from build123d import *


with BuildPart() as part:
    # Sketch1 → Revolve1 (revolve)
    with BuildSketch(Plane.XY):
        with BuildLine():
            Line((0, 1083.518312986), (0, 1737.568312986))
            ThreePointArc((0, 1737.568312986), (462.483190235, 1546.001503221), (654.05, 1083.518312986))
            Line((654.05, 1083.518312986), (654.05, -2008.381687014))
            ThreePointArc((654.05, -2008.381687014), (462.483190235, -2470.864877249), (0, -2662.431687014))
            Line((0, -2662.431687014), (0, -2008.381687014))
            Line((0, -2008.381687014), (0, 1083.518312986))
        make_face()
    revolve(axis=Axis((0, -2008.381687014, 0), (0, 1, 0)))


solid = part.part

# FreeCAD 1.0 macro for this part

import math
import FreeCAD as App
import Part
import Sketcher

V = App.Vector

doc = App.newDocument("Part")
params = doc.addObject("Spreadsheet::Sheet", "Params")
for row, (alias, value) in enumerate([
    ("sketch1_height", "4400 mm"),
    ("sketch1_radius", "654.05 mm"),
    ("revolution_angle", "360 deg"),
], start=1):
    params.set(f"A{row}", alias)
    params.set(f"B{row}", "=" + value)
    params.setAlias(f"B{row}", alias)

body = doc.addObject("PartDesign::Body", "Body")

# Sketch on XY plane
sketch1 = body.newObject("Sketcher::SketchObject", "Sketch")
sketch1.AttachmentSupport = (doc.getObject("XY_Plane"), [""])
sketch1.MapMode = "FlatFace"
sketch1.addGeometry([
    Part.ArcOfCircle(Part.Circle(V(0, 1084, 0), V(0, 0, 1), 654), math.radians(0), math.radians(90)),
    Part.LineSegment(V(0, 1738, 0), V(0, -2662, 0)),
    Part.ArcOfCircle(Part.Circle(V(0, -2008, 0), V(0, 0, 1), 654), math.radians(-90), math.radians(0)),
    Part.LineSegment(V(654, -2008, 0), V(654, 1084, 0)),
], False)
sketch1.addConstraint([
    Sketcher.Constraint("Coincident", 0, 2, 1, 1),
    Sketcher.Constraint("Coincident", 1, 2, 2, 1),
    Sketcher.Constraint("Tangent", 2, 2, 3, 1),
    Sketcher.Constraint("Tangent", 3, 2, 0, 1),
    Sketcher.Constraint("Vertical", 1),
    Sketcher.Constraint("Vertical", 3),
    Sketcher.Constraint("Equal", 0, 2),
    Sketcher.Constraint("PointOnObject", 0, 3, -2),
    Sketcher.Constraint("PointOnObject", 1, 2, -2),
    Sketcher.Constraint("DistanceY", 1, 2, 1, 1, 4400.0),
    Sketcher.Constraint("Radius", 0, 654.05),
    Sketcher.Constraint("DistanceY", -1, 1, 0, 3, 1083.518313),
])
sketch1.setExpression("Constraints[9]", "Params.sketch1_height")
sketch1.setExpression("Constraints[10]", "Params.sketch1_radius")
revolution = body.newObject("PartDesign::Revolution", "Revolution")
revolution.Profile = sketch1
revolution.ReferenceAxis = (sketch1, ["V_Axis"])
revolution.setExpression("Angle", "Params.revolution_angle")

doc.recompute()
